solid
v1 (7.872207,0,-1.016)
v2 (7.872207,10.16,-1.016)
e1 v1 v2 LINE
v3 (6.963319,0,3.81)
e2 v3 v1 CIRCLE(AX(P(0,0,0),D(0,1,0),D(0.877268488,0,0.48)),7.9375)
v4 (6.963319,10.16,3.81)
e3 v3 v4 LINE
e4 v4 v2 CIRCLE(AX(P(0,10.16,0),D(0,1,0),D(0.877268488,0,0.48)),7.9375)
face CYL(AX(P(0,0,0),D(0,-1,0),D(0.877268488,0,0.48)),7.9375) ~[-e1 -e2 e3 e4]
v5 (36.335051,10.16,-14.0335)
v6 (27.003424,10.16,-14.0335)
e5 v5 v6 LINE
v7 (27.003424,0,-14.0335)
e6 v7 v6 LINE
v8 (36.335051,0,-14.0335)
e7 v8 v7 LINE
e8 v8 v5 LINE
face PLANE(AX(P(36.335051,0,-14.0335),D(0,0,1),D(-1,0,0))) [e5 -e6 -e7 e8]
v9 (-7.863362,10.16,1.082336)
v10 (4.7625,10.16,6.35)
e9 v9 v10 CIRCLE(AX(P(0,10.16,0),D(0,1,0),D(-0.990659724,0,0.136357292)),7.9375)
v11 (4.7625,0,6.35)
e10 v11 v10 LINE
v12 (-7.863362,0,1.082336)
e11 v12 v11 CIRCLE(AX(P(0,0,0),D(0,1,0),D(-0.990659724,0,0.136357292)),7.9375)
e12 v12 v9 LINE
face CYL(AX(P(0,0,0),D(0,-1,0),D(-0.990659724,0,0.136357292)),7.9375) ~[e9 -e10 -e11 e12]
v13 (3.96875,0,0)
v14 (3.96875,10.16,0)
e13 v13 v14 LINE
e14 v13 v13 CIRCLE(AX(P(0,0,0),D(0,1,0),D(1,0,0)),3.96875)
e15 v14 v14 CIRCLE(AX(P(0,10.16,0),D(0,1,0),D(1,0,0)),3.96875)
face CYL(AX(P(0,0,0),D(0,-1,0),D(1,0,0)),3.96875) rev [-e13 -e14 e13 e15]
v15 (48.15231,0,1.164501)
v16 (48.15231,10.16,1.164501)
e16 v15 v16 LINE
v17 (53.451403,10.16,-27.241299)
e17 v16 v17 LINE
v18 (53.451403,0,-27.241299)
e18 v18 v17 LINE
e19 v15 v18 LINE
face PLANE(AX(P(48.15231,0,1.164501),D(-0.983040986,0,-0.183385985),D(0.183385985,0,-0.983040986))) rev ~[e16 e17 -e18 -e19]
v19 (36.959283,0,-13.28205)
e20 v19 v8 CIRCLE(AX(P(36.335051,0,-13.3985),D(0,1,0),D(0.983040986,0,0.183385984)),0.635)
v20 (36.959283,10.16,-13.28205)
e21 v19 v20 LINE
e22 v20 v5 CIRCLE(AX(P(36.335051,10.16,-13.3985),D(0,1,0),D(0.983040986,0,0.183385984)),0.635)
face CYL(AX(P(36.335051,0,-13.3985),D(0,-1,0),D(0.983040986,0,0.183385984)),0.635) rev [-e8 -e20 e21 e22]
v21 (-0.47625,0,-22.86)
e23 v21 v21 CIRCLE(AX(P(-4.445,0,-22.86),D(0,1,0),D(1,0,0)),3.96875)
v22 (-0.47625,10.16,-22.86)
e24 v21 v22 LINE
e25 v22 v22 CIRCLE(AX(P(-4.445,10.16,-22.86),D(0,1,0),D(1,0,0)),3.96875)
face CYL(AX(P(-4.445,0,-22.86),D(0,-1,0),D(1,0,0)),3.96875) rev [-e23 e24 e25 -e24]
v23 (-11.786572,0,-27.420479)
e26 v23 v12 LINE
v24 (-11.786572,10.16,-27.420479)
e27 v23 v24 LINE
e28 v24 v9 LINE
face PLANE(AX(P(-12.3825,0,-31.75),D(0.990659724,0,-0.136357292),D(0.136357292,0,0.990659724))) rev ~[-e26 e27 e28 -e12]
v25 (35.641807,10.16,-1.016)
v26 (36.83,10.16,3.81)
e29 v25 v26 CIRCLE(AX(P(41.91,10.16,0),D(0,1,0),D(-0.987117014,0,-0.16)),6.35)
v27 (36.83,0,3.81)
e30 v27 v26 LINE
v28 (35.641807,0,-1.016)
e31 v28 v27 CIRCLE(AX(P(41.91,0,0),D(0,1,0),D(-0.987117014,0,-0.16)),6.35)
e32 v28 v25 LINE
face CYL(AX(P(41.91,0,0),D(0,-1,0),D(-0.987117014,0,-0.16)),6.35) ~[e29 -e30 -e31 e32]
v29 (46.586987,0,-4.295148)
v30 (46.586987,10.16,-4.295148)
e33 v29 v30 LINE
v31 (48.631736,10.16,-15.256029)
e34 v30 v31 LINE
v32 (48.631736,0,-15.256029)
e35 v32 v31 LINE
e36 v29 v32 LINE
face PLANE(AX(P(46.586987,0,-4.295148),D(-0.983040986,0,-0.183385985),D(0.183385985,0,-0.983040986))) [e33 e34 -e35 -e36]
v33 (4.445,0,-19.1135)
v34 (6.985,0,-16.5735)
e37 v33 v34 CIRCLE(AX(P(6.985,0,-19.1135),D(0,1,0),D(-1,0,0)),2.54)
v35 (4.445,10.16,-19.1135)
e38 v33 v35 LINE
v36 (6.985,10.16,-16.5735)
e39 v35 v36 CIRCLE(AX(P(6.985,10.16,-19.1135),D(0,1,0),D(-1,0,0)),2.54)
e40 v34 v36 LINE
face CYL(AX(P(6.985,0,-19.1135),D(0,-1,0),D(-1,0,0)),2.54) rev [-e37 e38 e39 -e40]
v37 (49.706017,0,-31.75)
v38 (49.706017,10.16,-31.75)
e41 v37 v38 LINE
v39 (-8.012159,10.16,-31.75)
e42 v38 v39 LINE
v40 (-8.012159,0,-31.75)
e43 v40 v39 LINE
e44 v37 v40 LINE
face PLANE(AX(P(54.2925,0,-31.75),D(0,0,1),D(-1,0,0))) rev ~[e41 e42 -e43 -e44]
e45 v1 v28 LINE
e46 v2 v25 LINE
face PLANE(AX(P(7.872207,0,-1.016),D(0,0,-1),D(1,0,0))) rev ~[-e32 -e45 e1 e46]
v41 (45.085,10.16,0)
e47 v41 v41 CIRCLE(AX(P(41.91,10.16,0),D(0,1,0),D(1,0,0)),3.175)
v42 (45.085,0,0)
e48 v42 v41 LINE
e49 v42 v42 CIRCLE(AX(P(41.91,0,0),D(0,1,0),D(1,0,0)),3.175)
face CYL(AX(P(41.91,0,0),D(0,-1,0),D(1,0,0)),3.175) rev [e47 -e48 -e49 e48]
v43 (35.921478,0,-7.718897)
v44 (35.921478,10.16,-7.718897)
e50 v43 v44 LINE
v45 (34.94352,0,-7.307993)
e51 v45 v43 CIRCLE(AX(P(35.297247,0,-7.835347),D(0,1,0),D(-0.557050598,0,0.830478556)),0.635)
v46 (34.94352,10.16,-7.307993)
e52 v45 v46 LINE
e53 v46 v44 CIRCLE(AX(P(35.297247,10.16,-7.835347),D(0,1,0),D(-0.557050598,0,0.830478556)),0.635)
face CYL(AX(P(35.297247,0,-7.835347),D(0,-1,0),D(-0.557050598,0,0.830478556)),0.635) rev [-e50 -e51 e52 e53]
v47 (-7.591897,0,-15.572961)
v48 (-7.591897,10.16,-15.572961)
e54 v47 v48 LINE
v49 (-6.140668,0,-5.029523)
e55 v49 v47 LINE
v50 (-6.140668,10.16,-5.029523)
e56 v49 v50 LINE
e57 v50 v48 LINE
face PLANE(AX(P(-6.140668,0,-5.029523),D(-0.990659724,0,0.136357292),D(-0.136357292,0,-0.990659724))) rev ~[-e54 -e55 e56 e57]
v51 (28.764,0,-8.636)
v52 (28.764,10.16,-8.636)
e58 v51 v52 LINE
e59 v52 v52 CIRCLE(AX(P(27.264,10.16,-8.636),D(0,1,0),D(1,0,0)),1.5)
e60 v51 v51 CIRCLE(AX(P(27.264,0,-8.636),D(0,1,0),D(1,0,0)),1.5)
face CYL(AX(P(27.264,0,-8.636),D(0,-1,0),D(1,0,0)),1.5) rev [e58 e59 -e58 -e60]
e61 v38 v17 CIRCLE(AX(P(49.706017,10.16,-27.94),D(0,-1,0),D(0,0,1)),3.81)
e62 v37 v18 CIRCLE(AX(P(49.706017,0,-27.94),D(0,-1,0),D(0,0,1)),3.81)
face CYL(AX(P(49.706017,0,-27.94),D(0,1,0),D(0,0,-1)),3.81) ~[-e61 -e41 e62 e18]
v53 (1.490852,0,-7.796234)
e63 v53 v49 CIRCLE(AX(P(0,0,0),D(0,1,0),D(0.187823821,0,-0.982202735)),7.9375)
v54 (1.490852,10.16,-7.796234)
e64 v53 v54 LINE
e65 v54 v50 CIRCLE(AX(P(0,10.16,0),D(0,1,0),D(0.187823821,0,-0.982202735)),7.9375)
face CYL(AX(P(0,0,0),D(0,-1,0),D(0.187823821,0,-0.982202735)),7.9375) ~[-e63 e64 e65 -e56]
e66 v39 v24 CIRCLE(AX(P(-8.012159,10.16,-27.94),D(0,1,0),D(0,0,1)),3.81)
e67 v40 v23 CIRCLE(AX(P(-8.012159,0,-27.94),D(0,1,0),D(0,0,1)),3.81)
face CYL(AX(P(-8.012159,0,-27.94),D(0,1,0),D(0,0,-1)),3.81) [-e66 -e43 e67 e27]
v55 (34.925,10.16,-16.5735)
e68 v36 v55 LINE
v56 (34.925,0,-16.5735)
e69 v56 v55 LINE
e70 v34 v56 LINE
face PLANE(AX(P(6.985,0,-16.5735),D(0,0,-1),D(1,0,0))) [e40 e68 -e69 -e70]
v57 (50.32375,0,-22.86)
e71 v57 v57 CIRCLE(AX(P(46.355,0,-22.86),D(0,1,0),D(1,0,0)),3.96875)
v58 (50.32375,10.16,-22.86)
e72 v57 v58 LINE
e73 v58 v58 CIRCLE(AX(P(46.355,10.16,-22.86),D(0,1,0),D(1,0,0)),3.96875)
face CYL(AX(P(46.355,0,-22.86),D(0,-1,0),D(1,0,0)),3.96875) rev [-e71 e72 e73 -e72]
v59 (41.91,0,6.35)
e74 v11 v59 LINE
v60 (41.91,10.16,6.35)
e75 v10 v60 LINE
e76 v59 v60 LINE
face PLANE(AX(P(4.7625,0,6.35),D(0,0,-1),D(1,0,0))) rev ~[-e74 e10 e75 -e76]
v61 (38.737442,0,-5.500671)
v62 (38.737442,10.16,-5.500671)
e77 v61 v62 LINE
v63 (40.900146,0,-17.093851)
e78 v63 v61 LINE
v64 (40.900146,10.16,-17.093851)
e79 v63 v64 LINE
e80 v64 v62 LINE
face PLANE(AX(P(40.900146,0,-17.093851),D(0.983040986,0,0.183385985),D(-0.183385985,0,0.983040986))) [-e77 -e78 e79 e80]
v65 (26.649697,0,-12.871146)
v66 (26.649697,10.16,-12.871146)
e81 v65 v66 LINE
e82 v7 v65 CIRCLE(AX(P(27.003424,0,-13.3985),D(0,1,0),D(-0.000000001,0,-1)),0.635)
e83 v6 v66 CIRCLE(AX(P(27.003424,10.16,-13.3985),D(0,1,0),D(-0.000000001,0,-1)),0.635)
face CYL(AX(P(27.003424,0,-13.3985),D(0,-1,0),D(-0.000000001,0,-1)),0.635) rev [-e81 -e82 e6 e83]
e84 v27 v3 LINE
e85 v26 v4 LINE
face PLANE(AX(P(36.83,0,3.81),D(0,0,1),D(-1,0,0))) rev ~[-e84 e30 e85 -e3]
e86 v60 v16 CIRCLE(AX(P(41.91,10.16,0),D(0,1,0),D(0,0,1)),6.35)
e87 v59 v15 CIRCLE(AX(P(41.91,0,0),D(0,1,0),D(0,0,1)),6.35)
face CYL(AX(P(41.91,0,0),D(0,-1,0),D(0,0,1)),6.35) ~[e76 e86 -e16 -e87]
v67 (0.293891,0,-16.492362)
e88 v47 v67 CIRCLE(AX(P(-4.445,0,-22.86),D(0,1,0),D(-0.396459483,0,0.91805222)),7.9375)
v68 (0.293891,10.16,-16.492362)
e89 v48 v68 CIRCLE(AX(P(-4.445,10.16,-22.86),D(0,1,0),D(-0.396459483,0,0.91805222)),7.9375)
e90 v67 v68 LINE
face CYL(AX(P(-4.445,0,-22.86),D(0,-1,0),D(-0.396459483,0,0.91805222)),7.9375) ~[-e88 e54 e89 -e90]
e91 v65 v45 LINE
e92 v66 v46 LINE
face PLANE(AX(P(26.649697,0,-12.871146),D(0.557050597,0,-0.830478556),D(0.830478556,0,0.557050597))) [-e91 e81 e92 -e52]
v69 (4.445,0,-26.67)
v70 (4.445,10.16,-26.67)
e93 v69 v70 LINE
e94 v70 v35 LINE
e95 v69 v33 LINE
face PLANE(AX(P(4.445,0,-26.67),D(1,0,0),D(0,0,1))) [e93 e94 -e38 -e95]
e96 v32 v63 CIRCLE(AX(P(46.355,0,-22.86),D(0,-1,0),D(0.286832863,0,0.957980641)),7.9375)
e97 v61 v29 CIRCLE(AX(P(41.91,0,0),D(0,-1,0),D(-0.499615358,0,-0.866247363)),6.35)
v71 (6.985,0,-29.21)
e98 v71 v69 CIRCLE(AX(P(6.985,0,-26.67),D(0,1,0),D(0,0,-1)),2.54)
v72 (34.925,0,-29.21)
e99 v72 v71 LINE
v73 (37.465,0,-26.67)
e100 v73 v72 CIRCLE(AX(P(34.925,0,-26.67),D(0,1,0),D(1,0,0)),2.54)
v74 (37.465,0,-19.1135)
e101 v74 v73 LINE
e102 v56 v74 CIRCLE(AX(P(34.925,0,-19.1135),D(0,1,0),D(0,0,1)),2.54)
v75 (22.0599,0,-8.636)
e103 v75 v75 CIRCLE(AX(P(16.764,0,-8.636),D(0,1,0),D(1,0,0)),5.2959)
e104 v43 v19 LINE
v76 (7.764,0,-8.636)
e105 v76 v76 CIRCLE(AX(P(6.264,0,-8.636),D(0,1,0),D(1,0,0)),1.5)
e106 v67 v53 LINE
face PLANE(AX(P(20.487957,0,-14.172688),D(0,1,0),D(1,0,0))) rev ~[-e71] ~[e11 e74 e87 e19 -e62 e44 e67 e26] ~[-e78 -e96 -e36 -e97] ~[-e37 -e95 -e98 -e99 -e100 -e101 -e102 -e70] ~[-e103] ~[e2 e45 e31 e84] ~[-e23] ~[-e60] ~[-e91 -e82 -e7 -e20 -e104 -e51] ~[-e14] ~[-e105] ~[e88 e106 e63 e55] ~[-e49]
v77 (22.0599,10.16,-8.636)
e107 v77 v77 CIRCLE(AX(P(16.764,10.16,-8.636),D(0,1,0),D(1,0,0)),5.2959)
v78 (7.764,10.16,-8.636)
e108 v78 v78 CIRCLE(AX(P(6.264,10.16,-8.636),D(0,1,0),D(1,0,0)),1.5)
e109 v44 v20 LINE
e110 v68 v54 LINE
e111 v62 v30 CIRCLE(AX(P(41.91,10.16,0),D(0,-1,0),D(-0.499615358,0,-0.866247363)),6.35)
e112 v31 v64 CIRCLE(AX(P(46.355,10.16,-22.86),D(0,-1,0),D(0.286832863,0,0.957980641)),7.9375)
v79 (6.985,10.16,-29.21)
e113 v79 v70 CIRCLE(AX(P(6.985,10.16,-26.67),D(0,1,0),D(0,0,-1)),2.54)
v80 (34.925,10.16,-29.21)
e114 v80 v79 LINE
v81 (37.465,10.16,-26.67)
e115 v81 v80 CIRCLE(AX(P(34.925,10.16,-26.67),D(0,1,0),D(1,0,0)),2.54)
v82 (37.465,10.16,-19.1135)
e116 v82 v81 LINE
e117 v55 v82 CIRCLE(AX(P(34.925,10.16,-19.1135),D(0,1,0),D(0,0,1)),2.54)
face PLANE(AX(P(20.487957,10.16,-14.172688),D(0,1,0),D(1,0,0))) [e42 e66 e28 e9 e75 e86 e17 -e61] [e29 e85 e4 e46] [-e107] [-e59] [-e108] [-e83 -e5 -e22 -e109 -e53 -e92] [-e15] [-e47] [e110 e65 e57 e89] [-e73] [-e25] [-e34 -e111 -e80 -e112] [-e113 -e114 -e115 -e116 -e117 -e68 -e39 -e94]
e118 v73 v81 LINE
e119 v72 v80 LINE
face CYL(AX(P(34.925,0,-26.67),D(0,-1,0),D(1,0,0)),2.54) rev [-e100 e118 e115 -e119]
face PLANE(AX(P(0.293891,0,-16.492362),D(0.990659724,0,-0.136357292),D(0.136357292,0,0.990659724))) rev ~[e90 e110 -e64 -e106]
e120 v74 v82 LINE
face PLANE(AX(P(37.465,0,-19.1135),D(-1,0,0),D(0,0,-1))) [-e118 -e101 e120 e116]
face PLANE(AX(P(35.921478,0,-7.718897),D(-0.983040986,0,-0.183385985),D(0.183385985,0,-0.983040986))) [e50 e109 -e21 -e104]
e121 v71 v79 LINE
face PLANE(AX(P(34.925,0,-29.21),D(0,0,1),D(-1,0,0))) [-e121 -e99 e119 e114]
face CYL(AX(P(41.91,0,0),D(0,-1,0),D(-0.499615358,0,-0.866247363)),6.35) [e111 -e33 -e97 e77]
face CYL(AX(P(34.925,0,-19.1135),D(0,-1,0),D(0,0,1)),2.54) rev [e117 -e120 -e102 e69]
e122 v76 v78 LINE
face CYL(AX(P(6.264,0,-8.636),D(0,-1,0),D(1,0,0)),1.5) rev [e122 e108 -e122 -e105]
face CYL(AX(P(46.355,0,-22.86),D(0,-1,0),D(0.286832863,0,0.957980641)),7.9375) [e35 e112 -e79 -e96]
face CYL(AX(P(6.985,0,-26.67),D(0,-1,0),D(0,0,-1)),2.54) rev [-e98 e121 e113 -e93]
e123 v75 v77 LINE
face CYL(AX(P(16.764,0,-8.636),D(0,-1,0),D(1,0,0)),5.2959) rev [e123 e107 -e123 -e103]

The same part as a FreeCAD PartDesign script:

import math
import FreeCAD as App
import Part
import Sketcher

V = App.Vector
Q = App.Units.Quantity


def edges_at(feature, points):
    """Names of the edges that pass closest to the given points."""
    edges = feature.Shape.Edges
    near = lambda p: min(range(len(edges)), key=lambda i: edges[i].distToShape(Part.Vertex(*p))[0])
    return sorted({f"Edge{near(p) + 1}" for p in points})

doc = App.newDocument("Part")
body = doc.addObject("PartDesign::Body", "Body")

sketch1 = body.newObject("Sketcher::SketchObject", "Sketch")
sketch1.AttachmentSupport = (doc.getObject("XZ_Plane"), [""])
sketch1.MapMode = "FlatFace"
sketch1.addGeometry([
    Part.LineSegment(V(54.3, -31.8, 0), V(-12.4, -31.8, 0)),
    Part.LineSegment(V(-12.4, -31.8, 0), V(-7.9, 1.1, 0)),
    Part.ArcOfCircle(Part.Circle(V(0, 0, 0), V(0, 0, 1), 7.9), math.radians(53), math.radians(172)),
    Part.LineSegment(V(4.8, 6.3, 0), V(41.9, 6.3, 0)),
    Part.ArcOfCircle(Part.Circle(V(41.9, 0, 0), V(0, 0, 1), 6.3), math.radians(11), math.radians(90)),
    Part.LineSegment(V(48.2, 1.2, 0), V(54.3, -31.8, 0)),
    Part.Circle(V(0, 0, 0), V(0, 0, 1), 4),
    Part.ArcOfCircle(Part.Circle(V(0, 0, 0), V(0, 0, 1), 7.9), math.radians(-141), math.radians(-79)),
    Part.LineSegment(V(-6.1, -5, 0), V(-7.6, -15.6, 0)),
    Part.ArcOfCircle(Part.Circle(V(-4.4, -22.9, 0), V(0, 0, 1), 7.9), math.radians(53), math.radians(113)),
    Part.LineSegment(V(0.3, -16.5, 0), V(1.5, -7.8, 0)),
    Part.Circle(V(6.3, -8.6, 0), V(0, 0, 1), 1.5),
    Part.Circle(V(16.8, -8.6, 0), V(0, 0, 1), 5.3),
    Part.ArcOfCircle(Part.Circle(V(41.9, 0, 0), V(0, 0, 1), 6.3), math.radians(143), math.radians(189)),
    Part.LineSegment(V(36.8, 3.8, 0), V(7, 3.8, 0)),
    Part.ArcOfCircle(Part.Circle(V(0, 0, 0), V(0, 0, 1), 7.9), math.radians(-7), math.radians(29)),
    Part.LineSegment(V(7.9, -1, 0), V(35.6, -1, 0)),
    Part.Circle(V(41.9, 0, 0), V(0, 0, 1), 3.2),
    Part.Circle(V(27.3, -8.6, 0), V(0, 0, 1), 1.5),
    Part.LineSegment(V(37, -13.3, 0), V(35.9, -7.7, 0)),
    Part.ArcOfCircle(Part.Circle(V(35.3, -7.8, 0), V(0, 0, 1), 0.6), math.radians(11), math.radians(124)),
    Part.LineSegment(V(34.9, -7.3, 0), V(26.6, -12.9, 0)),
    Part.ArcOfCircle(Part.Circle(V(27, -13.4, 0), V(0, 0, 1), 0.6), math.radians(124), math.radians(270)),
    Part.LineSegment(V(27, -14, 0), V(36.3, -14, 0)),
    Part.ArcOfCircle(Part.Circle(V(36.3, -13.4, 0), V(0, 0, 1), 0.6), math.radians(-90), math.radians(11)),
    Part.LineSegment(V(48.6, -15.3, 0), V(46.6, -4.3, 0)),
    Part.ArcOfCircle(Part.Circle(V(41.9, 0, 0), V(0, 0, 1), 6.3), math.radians(-120), math.radians(-43)),
    Part.LineSegment(V(38.7, -5.5, 0), V(40.9, -17.1, 0)),
    Part.ArcOfCircle(Part.Circle(V(46.4, -22.9, 0), V(0, 0, 1), 7.9), math.radians(73), math.radians(133)),
    Part.Circle(V(-4.4, -22.9, 0), V(0, 0, 1), 4),
    Part.LineSegment(V(7, -29.2, 0), V(34.9, -29.2, 0)),
    Part.ArcOfCircle(Part.Circle(V(34.9, -26.7, 0), V(0, 0, 1), 2.5), math.radians(-90), math.radians(0)),
    Part.LineSegment(V(37.5, -26.7, 0), V(37.5, -19.1, 0)),
    Part.ArcOfCircle(Part.Circle(V(34.9, -19.1, 0), V(0, 0, 1), 2.5), math.radians(0), math.radians(90)),
    Part.LineSegment(V(34.9, -16.6, 0), V(7, -16.6, 0)),
    Part.ArcOfCircle(Part.Circle(V(7, -19.1, 0), V(0, 0, 1), 2.5), math.radians(90), math.radians(180)),
    Part.LineSegment(V(4.4, -19.1, 0), V(4.4, -26.7, 0)),
    Part.ArcOfCircle(Part.Circle(V(7, -26.7, 0), V(0, 0, 1), 2.5), math.radians(-180), math.radians(-90)),
    Part.Circle(V(46.4, -22.9, 0), V(0, 0, 1), 4),
], False)
sketch1.addConstraint([
    Sketcher.Constraint("Coincident", 0, 2, 1, 1),
    Sketcher.Constraint("Tangent", 1, 2, 2, 2),
    Sketcher.Constraint("Coincident", 2, 1, 3, 1),
    Sketcher.Constraint("Tangent", 3, 2, 4, 2),
    Sketcher.Constraint("Tangent", 4, 1, 5, 1),
    Sketcher.Constraint("Coincident", 5, 2, 0, 1),
    Sketcher.Constraint("Coincident", 7, 1, 8, 1),
    Sketcher.Constraint("Coincident", 8, 2, 9, 2),
    Sketcher.Constraint("Coincident", 9, 1, 10, 1),
    Sketcher.Constraint("Coincident", 10, 2, 7, 2),
    Sketcher.Constraint("Coincident", 13, 1, 14, 1),
    Sketcher.Constraint("Coincident", 14, 2, 15, 2),
    Sketcher.Constraint("Coincident", 15, 1, 16, 1),
    Sketcher.Constraint("Coincident", 16, 2, 13, 2),
    Sketcher.Constraint("Tangent", 19, 2, 20, 1),
    Sketcher.Constraint("Tangent", 20, 2, 21, 1),
    Sketcher.Constraint("Tangent", 21, 2, 22, 1),
    Sketcher.Constraint("Tangent", 22, 2, 23, 1),
    Sketcher.Constraint("Tangent", 23, 2, 24, 1),
    Sketcher.Constraint("Tangent", 24, 2, 19, 1),
    Sketcher.Constraint("Coincident", 25, 2, 26, 2),
    Sketcher.Constraint("Coincident", 26, 1, 27, 1),
    Sketcher.Constraint("Coincident", 27, 2, 28, 2),
    Sketcher.Constraint("Coincident", 28, 1, 25, 1),
    Sketcher.Constraint("Tangent", 30, 2, 31, 1),
    Sketcher.Constraint("Tangent", 31, 2, 32, 1),
    Sketcher.Constraint("Tangent", 32, 2, 33, 1),
    Sketcher.Constraint("Tangent", 33, 2, 34, 1),
    Sketcher.Constraint("Tangent", 34, 2, 35, 1),
    Sketcher.Constraint("Tangent", 35, 2, 36, 1),
    Sketcher.Constraint("Tangent", 36, 2, 37, 1),
    Sketcher.Constraint("Tangent", 37, 2, 30, 1),
    Sketcher.Constraint("Horizontal", 0),
    Sketcher.Constraint("Horizontal", 3),
    Sketcher.Constraint("Horizontal", 14),
    Sketcher.Constraint("Horizontal", 16),
    Sketcher.Constraint("Horizontal", 23),
    Sketcher.Constraint("Horizontal", 30),
    Sketcher.Constraint("Vertical", 32),
    Sketcher.Constraint("Horizontal", 34),
    Sketcher.Constraint("Vertical", 36),
    Sketcher.Constraint("Coincident", 2, 3, -1, 1),
    Sketcher.Constraint("Coincident", 6, 3, -1, 1),
    Sketcher.Constraint("Coincident", 7, 3, -1, 1),
    Sketcher.Constraint("Coincident", 15, 3, -1, 1),
    Sketcher.Constraint("Coincident", 13, 3, 4, 3),
    Sketcher.Constraint("Coincident", 17, 3, 4, 3),
    Sketcher.Constraint("Coincident", 26, 3, 4, 3),
    Sketcher.Constraint("Coincident", 29, 3, 9, 3),
    Sketcher.Constraint("Coincident", 38, 3, 28, 3),
    Sketcher.Constraint("Equal", 2, 7),
    Sketcher.Constraint("Equal", 7, 9),
    Sketcher.Constraint("Equal", 4, 13),
    Sketcher.Constraint("Equal", 9, 15),
    Sketcher.Constraint("Equal", 11, 18),
    Sketcher.Constraint("Equal", 20, 22),
    Sketcher.Constraint("Equal", 22, 24),
    Sketcher.Constraint("Equal", 13, 26),
    Sketcher.Constraint("Equal", 15, 28),
    Sketcher.Constraint("Equal", 6, 29),
    Sketcher.Constraint("Equal", 31, 33),
    Sketcher.Constraint("Equal", 33, 35),
    Sketcher.Constraint("Equal", 35, 37),
    Sketcher.Constraint("Equal", 29, 38),
    Sketcher.Constraint("PointOnObject", 4, 3, -1),
    Sketcher.Constraint("Parallel", 1, 8),
    Sketcher.Constraint("Parallel", 8, 10),
    Sketcher.Constraint("Parallel", 5, 19),
    Sketcher.Constraint("Parallel", 19, 25),
    Sketcher.Constraint("Parallel", 25, 27),
    Sketcher.Constraint("Horizontal", 11, 3, 12, 3),
    Sketcher.Constraint("Horizontal", 12, 3, 18, 3),
    Sketcher.Constraint("Horizontal", 9, 3, 28, 3),
    Sketcher.Constraint("Radius", 31, Q("0.1 in")),
    Sketcher.Constraint("Diameter", 17, Q("0.25 in")),
    Sketcher.Constraint("Radius", 4, Q("0.25 in")),
    Sketcher.Constraint("Diameter", 6, Q("0.3125 in")),
    Sketcher.Constraint("Diameter", 12, Q("0.417 in")),
    Sketcher.Constraint("DistanceX", 30, 1, 30, 2, Q("1.1 in")),
    Sketcher.Constraint("Radius", 2, Q("0.3125 in")),
    Sketcher.Constraint("Radius", 20, Q("0.025 in")),
    Sketcher.Constraint("DistanceY", 9, 3, -1, 1, Q("0.9 in")),
    Sketcher.Constraint("DistanceY", 0, 2, 37, 3, Q("0.2 in")),
    Sketcher.Constraint("DistanceX", 13, 1, 3, 2, Q("0.2 in")),
    Sketcher.Constraint("DistanceY", 11, 3, 15, 1, Q("0.3 in")),
    Sketcher.Constraint("DistanceY", 33, 3, 22, 2, Q("0.2 in")),
    Sketcher.Constraint("Diameter", 11, 3.0),
    Sketcher.Constraint("DistanceX", 0, 2, 0, 1, Q("2.625 in")),
    Sketcher.Constraint("DistanceX", -1, 1, 4, 3, Q("1.65 in")),
    Sketcher.Constraint("DistanceY", 11, 3, -1, 1, Q("0.34 in")),
    Sketcher.Constraint("DistanceX", -1, 1, 12, 3, Q("0.66 in")),
    Sketcher.Constraint("DistanceY", 31, 3, -1, 1, Q("1.05 in")),
    Sketcher.Constraint("DistanceX", 31, 3, 28, 3, Q("0.45 in")),
    Sketcher.Constraint("DistanceX", 9, 3, 35, 3, Q("0.45 in")),
    Sketcher.Constraint("DistanceY", 32, 1, 32, 2, Q("0.2975 in")),
    Sketcher.Constraint("DistanceX", 9, 3, -1, 1, Q("0.175 in")),
    Sketcher.Constraint("DistanceX", 0, 2, 29, 3, Q("0.3125 in")),
    Sketcher.Constraint("Distance", 21, 9.9868),
    Sketcher.Constraint("DistanceX", -1, 1, 11, 3, 6.264),
    Sketcher.Constraint("DistanceX", -1, 1, 18, 3, 27.264),
    Sketcher.Constraint("DistanceY", 9, 1, 8, 2, 0.919401),
    Sketcher.Constraint("DistanceY", 21, 2, 20, 3, 5.035799),
    Sketcher.Constraint("DistanceY", 27, 2, 24, 2, 3.811801),
    Sketcher.Constraint("DistanceX", -1, 1, 24, 3, 36.335051),
    Sketcher.Constraint("DistanceY", 8, 2, -1, 1, 15.572961),
    Sketcher.Constraint("DistanceY", 28, 1, -1, 1, 15.256029),
])
pad1 = body.newObject("PartDesign::Pad", "Pad")
pad1.Profile = sketch1
pad1.Length = Q("0.4 in")
pad1.Reversed = True
doc.recompute()

fillet = body.newObject("PartDesign::Fillet", "Fillet")
fillet.Base = (pad1, edges_at(pad1, [(-12.383, 5.08, -31.75), (54.292, 5.08, -31.75)]))
fillet.Radius = Q("0.15 in")

doc.recompute()
